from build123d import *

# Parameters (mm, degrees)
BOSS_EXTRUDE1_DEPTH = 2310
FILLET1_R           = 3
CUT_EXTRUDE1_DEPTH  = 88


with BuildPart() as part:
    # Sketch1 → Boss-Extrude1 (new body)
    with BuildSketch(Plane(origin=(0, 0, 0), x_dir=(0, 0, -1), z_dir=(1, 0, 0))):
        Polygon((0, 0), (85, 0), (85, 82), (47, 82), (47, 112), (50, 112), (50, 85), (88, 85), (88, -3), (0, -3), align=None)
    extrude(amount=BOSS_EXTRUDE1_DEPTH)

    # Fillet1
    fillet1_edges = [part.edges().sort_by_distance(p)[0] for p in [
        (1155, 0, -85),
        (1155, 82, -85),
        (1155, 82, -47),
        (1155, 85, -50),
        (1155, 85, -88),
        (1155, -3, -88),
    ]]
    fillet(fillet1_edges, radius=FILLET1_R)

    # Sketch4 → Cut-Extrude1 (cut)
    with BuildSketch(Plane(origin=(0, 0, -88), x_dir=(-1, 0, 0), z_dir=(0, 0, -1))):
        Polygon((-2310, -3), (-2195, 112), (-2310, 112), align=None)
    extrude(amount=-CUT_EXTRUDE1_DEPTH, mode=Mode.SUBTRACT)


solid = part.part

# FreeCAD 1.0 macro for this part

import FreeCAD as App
import Part
import Sketcher


def edges_at(feature, points):
    """Names of the edges that pass closest to the given points."""
    edges = feature.Shape.Edges
    near = lambda p: min(range(len(edges)), key=lambda i: edges[i].distToShape(Part.Vertex(*p))[0])
    return sorted({f"Edge{near(p) + 1}" for p in points})


def add_polygon(sketch, points):
    """Adds a closed chain of lines whose ends are joined by coincident constraints."""
    first, n = sketch.GeometryCount, len(points)
    for a, b in zip(points, points[1:] + points[:1]):
        sketch.addGeometry(Part.LineSegment(App.Vector(*a, 0), App.Vector(*b, 0)), False)
    for i in range(n):
        sketch.addConstraint(Sketcher.Constraint("Coincident", first + i, 2, first + (i + 1) % n, 1))

doc = App.newDocument("Part")
body = doc.addObject("PartDesign::Body", "Body")

sketch1 = body.newObject("Sketcher::SketchObject", "Sketch")
sketch1.AttachmentSupport = (doc.getObject("YZ_Plane"), [""])
sketch1.MapMode = "FlatFace"
add_polygon(sketch1, [(0, -85), (0, 0), (-3, 0), (-3, -88), (85, -88), (85, -50), (112, -50), (112, -47), (82, -47), (82, -85)])
sketch1.addConstraint([
    Sketcher.Constraint("Vertical", 0),
    Sketcher.Constraint("Horizontal", 1),
    Sketcher.Constraint("Vertical", 2),
    Sketcher.Constraint("Horizontal", 3),
    Sketcher.Constraint("Vertical", 4),
    Sketcher.Constraint("Horizontal", 5),
    Sketcher.Constraint("Vertical", 6),
    Sketcher.Constraint("Horizontal", 7),
    Sketcher.Constraint("Vertical", 8),
    Sketcher.Constraint("Horizontal", 9),
    Sketcher.Constraint("Coincident", 0, 2, -1, 1),
    Sketcher.Constraint("Equal", 3, 2),
    Sketcher.Constraint("Equal", 1, 6),
    Sketcher.Constraint("Equal", 4, 8),
    Sketcher.Constraint("DistanceX", 1, 2, 1, 1, 3.0),
    Sketcher.Constraint("DistanceX", 3, 1, 3, 2, 88.0),
    Sketcher.Constraint("DistanceX", 5, 1, 5, 2, 27.0),
    Sketcher.Constraint("DistanceX", 7, 2, 7, 1, 30.0),
    Sketcher.Constraint("DistanceY", 4, 1, 4, 2, 38.0),
])
pad1 = body.newObject("PartDesign::Pad", "Pad")
pad1.Profile = sketch1
pad1.Length = 2310
doc.recompute()

fillet = body.newObject("PartDesign::Fillet", "Fillet")
fillet.Base = (pad1, edges_at(pad1, [
    (1155, 0, -85),
    (1155, 82, -85),
    (1155, 82, -47),
    (1155, 85, -50),
    (1155, 85, -88),
    (1155, -3, -88),
]))
fillet.Radius = 3

sketch2 = body.newObject("Sketcher::SketchObject", "Sketch001")
sketch2.AttachmentSupport = (doc.getObject("XY_Plane"), [""])
sketch2.MapMode = "FlatFace"
sketch2.AttachmentOffset = App.Placement(App.Vector(0, 0, -88), App.Rotation())
add_polygon(sketch2, [(2310, -3), (2195, 112), (2310, 112)])
sketch2.addConstraint([
    Sketcher.Constraint("Horizontal", 1),
    Sketcher.Constraint("Vertical", 2),
    Sketcher.Constraint("Equal", 1, 2),
    Sketcher.Constraint("DistanceX", 1, 1, 1, 2, 115.0),
    Sketcher.Constraint("DistanceX", -1, 1, 0, 2, 2195.0),
    Sketcher.Constraint("DistanceY", -1, 1, 0, 2, 112.0),
])
pocket1 = body.newObject("PartDesign::Pocket", "Pocket")
pocket1.Profile = sketch2
pocket1.Length = 88
pocket1.Reversed = True

doc.recompute()
